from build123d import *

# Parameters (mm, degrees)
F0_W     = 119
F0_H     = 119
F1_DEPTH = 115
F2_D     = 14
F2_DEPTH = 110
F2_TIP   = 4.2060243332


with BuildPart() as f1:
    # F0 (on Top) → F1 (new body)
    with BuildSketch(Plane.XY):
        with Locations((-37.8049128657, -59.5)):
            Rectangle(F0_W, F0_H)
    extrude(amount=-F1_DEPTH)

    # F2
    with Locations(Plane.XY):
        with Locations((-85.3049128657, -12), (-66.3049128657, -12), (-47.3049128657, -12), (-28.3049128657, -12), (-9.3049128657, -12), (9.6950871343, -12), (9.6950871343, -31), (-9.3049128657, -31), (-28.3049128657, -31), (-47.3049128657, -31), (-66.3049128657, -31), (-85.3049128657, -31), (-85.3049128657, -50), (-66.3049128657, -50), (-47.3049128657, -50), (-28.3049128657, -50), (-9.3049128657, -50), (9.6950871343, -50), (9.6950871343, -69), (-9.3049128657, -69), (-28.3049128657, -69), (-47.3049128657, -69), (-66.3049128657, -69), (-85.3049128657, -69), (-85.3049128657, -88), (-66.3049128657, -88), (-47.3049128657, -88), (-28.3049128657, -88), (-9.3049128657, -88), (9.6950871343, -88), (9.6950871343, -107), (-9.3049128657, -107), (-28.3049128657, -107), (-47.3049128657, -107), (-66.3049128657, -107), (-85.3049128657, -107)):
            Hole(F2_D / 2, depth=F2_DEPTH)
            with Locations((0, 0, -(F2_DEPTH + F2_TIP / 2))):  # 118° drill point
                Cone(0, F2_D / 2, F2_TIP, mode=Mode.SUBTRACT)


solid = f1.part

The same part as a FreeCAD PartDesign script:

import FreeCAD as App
import Part
import Sketcher

V = App.Vector


def add_polygon(sketch, points):
    """Adds a closed chain of lines whose ends are joined by coincident constraints."""
    first, n = sketch.GeometryCount, len(points)
    for a, b in zip(points, points[1:] + points[:1]):
        sketch.addGeometry(Part.LineSegment(App.Vector(*a, 0), App.Vector(*b, 0)), False)
    for i in range(n):
        sketch.addConstraint(Sketcher.Constraint("Coincident", first + i, 2, first + (i + 1) % n, 1))

doc = App.newDocument("Part")
params = doc.addObject("Spreadsheet::Sheet", "Params")
for row, (alias, value) in enumerate([
    ("sketch1_width", "119 mm"),
    ("pad1_length", "115 mm"),
    ("sketch2_diameter", "14 mm"),
    ("hole_diameter", "14 mm"),
    ("hole_depth", "110 mm"),
], start=1):
    params.set(f"A{row}", alias)
    params.set(f"B{row}", "=" + value)
    params.setAlias(f"B{row}", alias)

body = doc.addObject("PartDesign::Body", "Body")

sketch1 = body.newObject("Sketcher::SketchObject", "Sketch")
sketch1.AttachmentSupport = (doc.getObject("XY_Plane"), [""])
sketch1.MapMode = "FlatFace"
add_polygon(sketch1, [(-97, 0), (-97, -119), (22, -119), (22, 0)])
sketch1.addConstraint([
    Sketcher.Constraint("Vertical", 0),
    Sketcher.Constraint("Horizontal", 1),
    Sketcher.Constraint("Vertical", 2),
    Sketcher.Constraint("Horizontal", 3),
    Sketcher.Constraint("PointOnObject", 2, 2, -1),
    Sketcher.Constraint("Equal", 3, 0),
    Sketcher.Constraint("DistanceX", 1, 1, 1, 2, 119.0),
    Sketcher.Constraint("DistanceX", 0, 2, -1, 1, 97.304913),
])
sketch1.setExpression("Constraints[10]", "Params.sketch1_width")
pad1 = body.newObject("PartDesign::Pad", "Pad")
pad1.Profile = sketch1
pad1.setExpression("Length", "Params.pad1_length")
pad1.Reversed = True

sketch2 = body.newObject("Sketcher::SketchObject", "Sketch001")
sketch2.AttachmentSupport = (doc.getObject("XY_Plane"), [""])
sketch2.MapMode = "FlatFace"
sketch2.addGeometry([
    Part.Circle(V(-85, -12, 0), V(0, 0, 1), 7),
    Part.Circle(V(-66, -12, 0), V(0, 0, 1), 7),
    Part.Circle(V(-47, -12, 0), V(0, 0, 1), 7),
    Part.Circle(V(-28, -12, 0), V(0, 0, 1), 7),
    Part.Circle(V(-9, -12, 0), V(0, 0, 1), 7),
    Part.Circle(V(10, -12, 0), V(0, 0, 1), 7),
    Part.Circle(V(10, -31, 0), V(0, 0, 1), 7),
    Part.Circle(V(-9, -31, 0), V(0, 0, 1), 7),
    Part.Circle(V(-28, -31, 0), V(0, 0, 1), 7),
    Part.Circle(V(-47, -31, 0), V(0, 0, 1), 7),
    Part.Circle(V(-66, -31, 0), V(0, 0, 1), 7),
    Part.Circle(V(-85, -31, 0), V(0, 0, 1), 7),
    Part.Circle(V(-85, -50, 0), V(0, 0, 1), 7),
    Part.Circle(V(-66, -50, 0), V(0, 0, 1), 7),
    Part.Circle(V(-47, -50, 0), V(0, 0, 1), 7),
    Part.Circle(V(-28, -50, 0), V(0, 0, 1), 7),
    Part.Circle(V(-9, -50, 0), V(0, 0, 1), 7),
    Part.Circle(V(10, -50, 0), V(0, 0, 1), 7),
    Part.Circle(V(10, -69, 0), V(0, 0, 1), 7),
    Part.Circle(V(-9, -69, 0), V(0, 0, 1), 7),
    Part.Circle(V(-28, -69, 0), V(0, 0, 1), 7),
    Part.Circle(V(-47, -69, 0), V(0, 0, 1), 7),
    Part.Circle(V(-66, -69, 0), V(0, 0, 1), 7),
    Part.Circle(V(-85, -69, 0), V(0, 0, 1), 7),
    Part.Circle(V(-85, -88, 0), V(0, 0, 1), 7),
    Part.Circle(V(-66, -88, 0), V(0, 0, 1), 7),
    Part.Circle(V(-47, -88, 0), V(0, 0, 1), 7),
    Part.Circle(V(-28, -88, 0), V(0, 0, 1), 7),
    Part.Circle(V(-9, -88, 0), V(0, 0, 1), 7),
    Part.Circle(V(10, -88, 0), V(0, 0, 1), 7),
    Part.Circle(V(10, -107, 0), V(0, 0, 1), 7),
    Part.Circle(V(-9, -107, 0), V(0, 0, 1), 7),
    Part.Circle(V(-28, -107, 0), V(0, 0, 1), 7),
    Part.Circle(V(-47, -107, 0), V(0, 0, 1), 7),
    Part.Circle(V(-66, -107, 0), V(0, 0, 1), 7),
    Part.Circle(V(-85, -107, 0), V(0, 0, 1), 7),
], False)
sketch2.addConstraint([
    Sketcher.Constraint("Equal", 0, 1),
    Sketcher.Constraint("Equal", 1, 2),
    Sketcher.Constraint("Equal", 2, 3),
    Sketcher.Constraint("Equal", 3, 4),
    Sketcher.Constraint("Equal", 4, 5),
    Sketcher.Constraint("Equal", 5, 6),
    Sketcher.Constraint("Equal", 6, 7),
    Sketcher.Constraint("Equal", 7, 8),
    Sketcher.Constraint("Equal", 8, 9),
    Sketcher.Constraint("Equal", 9, 10),
    Sketcher.Constraint("Equal", 10, 11),
    Sketcher.Constraint("Equal", 11, 12),
    Sketcher.Constraint("Equal", 12, 13),
    Sketcher.Constraint("Equal", 13, 14),
    Sketcher.Constraint("Equal", 14, 15),
    Sketcher.Constraint("Equal", 15, 16),
    Sketcher.Constraint("Equal", 16, 17),
    Sketcher.Constraint("Equal", 17, 18),
    Sketcher.Constraint("Equal", 18, 19),
    Sketcher.Constraint("Equal", 19, 20),
    Sketcher.Constraint("Equal", 20, 21),
    Sketcher.Constraint("Equal", 21, 22),
    Sketcher.Constraint("Equal", 22, 23),
    Sketcher.Constraint("Equal", 23, 24),
    Sketcher.Constraint("Equal", 24, 25),
    Sketcher.Constraint("Equal", 25, 26),
    Sketcher.Constraint("Equal", 26, 27),
    Sketcher.Constraint("Equal", 27, 28),
    Sketcher.Constraint("Equal", 28, 29),
    Sketcher.Constraint("Equal", 29, 30),
    Sketcher.Constraint("Equal", 30, 31),
    Sketcher.Constraint("Equal", 31, 32),
    Sketcher.Constraint("Equal", 32, 33),
    Sketcher.Constraint("Equal", 33, 34),
    Sketcher.Constraint("Equal", 34, 35),
    Sketcher.Constraint("Horizontal", 0, 3, 1, 3),
    Sketcher.Constraint("Horizontal", 1, 3, 2, 3),
    Sketcher.Constraint("Horizontal", 2, 3, 3, 3),
    Sketcher.Constraint("Horizontal", 3, 3, 4, 3),
    Sketcher.Constraint("Horizontal", 4, 3, 5, 3),
    Sketcher.Constraint("Horizontal", 6, 3, 7, 3),
    Sketcher.Constraint("Horizontal", 7, 3, 8, 3),
    Sketcher.Constraint("Horizontal", 8, 3, 9, 3),
    Sketcher.Constraint("Horizontal", 9, 3, 10, 3),
    Sketcher.Constraint("Horizontal", 10, 3, 11, 3),
    Sketcher.Constraint("Horizontal", 12, 3, 13, 3),
    Sketcher.Constraint("Horizontal", 13, 3, 14, 3),
    Sketcher.Constraint("Horizontal", 14, 3, 15, 3),
    Sketcher.Constraint("Horizontal", 15, 3, 16, 3),
    Sketcher.Constraint("Horizontal", 16, 3, 17, 3),
    Sketcher.Constraint("Horizontal", 18, 3, 19, 3),
    Sketcher.Constraint("Horizontal", 19, 3, 20, 3),
    Sketcher.Constraint("Horizontal", 20, 3, 21, 3),
    Sketcher.Constraint("Horizontal", 21, 3, 22, 3),
    Sketcher.Constraint("Horizontal", 22, 3, 23, 3),
    Sketcher.Constraint("Horizontal", 24, 3, 25, 3),
    Sketcher.Constraint("Horizontal", 25, 3, 26, 3),
    Sketcher.Constraint("Horizontal", 26, 3, 27, 3),
    Sketcher.Constraint("Horizontal", 27, 3, 28, 3),
    Sketcher.Constraint("Horizontal", 28, 3, 29, 3),
    Sketcher.Constraint("Horizontal", 30, 3, 31, 3),
    Sketcher.Constraint("Horizontal", 31, 3, 32, 3),
    Sketcher.Constraint("Horizontal", 32, 3, 33, 3),
    Sketcher.Constraint("Horizontal", 33, 3, 34, 3),
    Sketcher.Constraint("Horizontal", 34, 3, 35, 3),
    Sketcher.Constraint("Vertical", 5, 3, 6, 3),
    Sketcher.Constraint("Vertical", 4, 3, 7, 3),
    Sketcher.Constraint("Vertical", 3, 3, 8, 3),
    Sketcher.Constraint("Vertical", 2, 3, 9, 3),
    Sketcher.Constraint("Vertical", 1, 3, 10, 3),
    Sketcher.Constraint("Vertical", 0, 3, 11, 3),
    Sketcher.Constraint("Vertical", 11, 3, 12, 3),
    Sketcher.Constraint("Vertical", 10, 3, 13, 3),
    Sketcher.Constraint("Vertical", 9, 3, 14, 3),
    Sketcher.Constraint("Vertical", 8, 3, 15, 3),
    Sketcher.Constraint("Vertical", 7, 3, 16, 3),
    Sketcher.Constraint("Vertical", 6, 3, 17, 3),
    Sketcher.Constraint("Vertical", 17, 3, 18, 3),
    Sketcher.Constraint("Vertical", 16, 3, 19, 3),
    Sketcher.Constraint("Vertical", 15, 3, 20, 3),
    Sketcher.Constraint("Vertical", 14, 3, 21, 3),
    Sketcher.Constraint("Vertical", 13, 3, 22, 3),
    Sketcher.Constraint("Vertical", 12, 3, 23, 3),
    Sketcher.Constraint("Vertical", 23, 3, 24, 3),
    Sketcher.Constraint("Vertical", 22, 3, 25, 3),
    Sketcher.Constraint("Vertical", 21, 3, 26, 3),
    Sketcher.Constraint("Vertical", 20, 3, 27, 3),
    Sketcher.Constraint("Vertical", 19, 3, 28, 3),
    Sketcher.Constraint("Vertical", 18, 3, 29, 3),
    Sketcher.Constraint("Vertical", 29, 3, 30, 3),
    Sketcher.Constraint("Vertical", 28, 3, 31, 3),
    Sketcher.Constraint("Vertical", 27, 3, 32, 3),
    Sketcher.Constraint("Vertical", 26, 3, 33, 3),
    Sketcher.Constraint("Vertical", 25, 3, 34, 3),
    Sketcher.Constraint("Vertical", 24, 3, 35, 3),
    Sketcher.Constraint("Diameter", 0, 14.0),
    Sketcher.Constraint("DistanceY", 0, 3, -1, 1, 12.0),
    Sketcher.Constraint("DistanceY", 6, 3, -1, 1, 31.0),
    Sketcher.Constraint("DistanceY", 12, 3, -1, 1, 50.0),
    Sketcher.Constraint("DistanceY", 18, 3, -1, 1, 69.0),
    Sketcher.Constraint("DistanceY", 24, 3, -1, 1, 88.0),
    Sketcher.Constraint("DistanceY", 30, 3, -1, 1, 107.0),
    Sketcher.Constraint("DistanceX", 0, 3, 1, 3, 19.0),
    Sketcher.Constraint("DistanceX", 1, 3, 2, 3, 19.0),
    Sketcher.Constraint("DistanceX", 2, 3, 3, 3, 19.0),
    Sketcher.Constraint("DistanceX", 3, 3, 4, 3, 19.0),
    Sketcher.Constraint("DistanceX", 4, 3, 5, 3, 19.0),
    Sketcher.Constraint("DistanceX", 0, 3, -1, 1, 85.304913),
])
sketch2.setExpression("Constraints[95]", "Params.sketch2_diameter")
doc.recompute()
hole = body.newObject("PartDesign::Hole", "Hole")
hole.Profile = sketch2
hole.ThreadType = "None"
hole.setExpression("Diameter", "Params.hole_diameter")
hole.DepthType = "Dimension"
hole.setExpression("Depth", "Params.hole_depth")
hole.DrillPoint = "Angled"
hole.DrillPointAngle = 118

doc.recompute()
